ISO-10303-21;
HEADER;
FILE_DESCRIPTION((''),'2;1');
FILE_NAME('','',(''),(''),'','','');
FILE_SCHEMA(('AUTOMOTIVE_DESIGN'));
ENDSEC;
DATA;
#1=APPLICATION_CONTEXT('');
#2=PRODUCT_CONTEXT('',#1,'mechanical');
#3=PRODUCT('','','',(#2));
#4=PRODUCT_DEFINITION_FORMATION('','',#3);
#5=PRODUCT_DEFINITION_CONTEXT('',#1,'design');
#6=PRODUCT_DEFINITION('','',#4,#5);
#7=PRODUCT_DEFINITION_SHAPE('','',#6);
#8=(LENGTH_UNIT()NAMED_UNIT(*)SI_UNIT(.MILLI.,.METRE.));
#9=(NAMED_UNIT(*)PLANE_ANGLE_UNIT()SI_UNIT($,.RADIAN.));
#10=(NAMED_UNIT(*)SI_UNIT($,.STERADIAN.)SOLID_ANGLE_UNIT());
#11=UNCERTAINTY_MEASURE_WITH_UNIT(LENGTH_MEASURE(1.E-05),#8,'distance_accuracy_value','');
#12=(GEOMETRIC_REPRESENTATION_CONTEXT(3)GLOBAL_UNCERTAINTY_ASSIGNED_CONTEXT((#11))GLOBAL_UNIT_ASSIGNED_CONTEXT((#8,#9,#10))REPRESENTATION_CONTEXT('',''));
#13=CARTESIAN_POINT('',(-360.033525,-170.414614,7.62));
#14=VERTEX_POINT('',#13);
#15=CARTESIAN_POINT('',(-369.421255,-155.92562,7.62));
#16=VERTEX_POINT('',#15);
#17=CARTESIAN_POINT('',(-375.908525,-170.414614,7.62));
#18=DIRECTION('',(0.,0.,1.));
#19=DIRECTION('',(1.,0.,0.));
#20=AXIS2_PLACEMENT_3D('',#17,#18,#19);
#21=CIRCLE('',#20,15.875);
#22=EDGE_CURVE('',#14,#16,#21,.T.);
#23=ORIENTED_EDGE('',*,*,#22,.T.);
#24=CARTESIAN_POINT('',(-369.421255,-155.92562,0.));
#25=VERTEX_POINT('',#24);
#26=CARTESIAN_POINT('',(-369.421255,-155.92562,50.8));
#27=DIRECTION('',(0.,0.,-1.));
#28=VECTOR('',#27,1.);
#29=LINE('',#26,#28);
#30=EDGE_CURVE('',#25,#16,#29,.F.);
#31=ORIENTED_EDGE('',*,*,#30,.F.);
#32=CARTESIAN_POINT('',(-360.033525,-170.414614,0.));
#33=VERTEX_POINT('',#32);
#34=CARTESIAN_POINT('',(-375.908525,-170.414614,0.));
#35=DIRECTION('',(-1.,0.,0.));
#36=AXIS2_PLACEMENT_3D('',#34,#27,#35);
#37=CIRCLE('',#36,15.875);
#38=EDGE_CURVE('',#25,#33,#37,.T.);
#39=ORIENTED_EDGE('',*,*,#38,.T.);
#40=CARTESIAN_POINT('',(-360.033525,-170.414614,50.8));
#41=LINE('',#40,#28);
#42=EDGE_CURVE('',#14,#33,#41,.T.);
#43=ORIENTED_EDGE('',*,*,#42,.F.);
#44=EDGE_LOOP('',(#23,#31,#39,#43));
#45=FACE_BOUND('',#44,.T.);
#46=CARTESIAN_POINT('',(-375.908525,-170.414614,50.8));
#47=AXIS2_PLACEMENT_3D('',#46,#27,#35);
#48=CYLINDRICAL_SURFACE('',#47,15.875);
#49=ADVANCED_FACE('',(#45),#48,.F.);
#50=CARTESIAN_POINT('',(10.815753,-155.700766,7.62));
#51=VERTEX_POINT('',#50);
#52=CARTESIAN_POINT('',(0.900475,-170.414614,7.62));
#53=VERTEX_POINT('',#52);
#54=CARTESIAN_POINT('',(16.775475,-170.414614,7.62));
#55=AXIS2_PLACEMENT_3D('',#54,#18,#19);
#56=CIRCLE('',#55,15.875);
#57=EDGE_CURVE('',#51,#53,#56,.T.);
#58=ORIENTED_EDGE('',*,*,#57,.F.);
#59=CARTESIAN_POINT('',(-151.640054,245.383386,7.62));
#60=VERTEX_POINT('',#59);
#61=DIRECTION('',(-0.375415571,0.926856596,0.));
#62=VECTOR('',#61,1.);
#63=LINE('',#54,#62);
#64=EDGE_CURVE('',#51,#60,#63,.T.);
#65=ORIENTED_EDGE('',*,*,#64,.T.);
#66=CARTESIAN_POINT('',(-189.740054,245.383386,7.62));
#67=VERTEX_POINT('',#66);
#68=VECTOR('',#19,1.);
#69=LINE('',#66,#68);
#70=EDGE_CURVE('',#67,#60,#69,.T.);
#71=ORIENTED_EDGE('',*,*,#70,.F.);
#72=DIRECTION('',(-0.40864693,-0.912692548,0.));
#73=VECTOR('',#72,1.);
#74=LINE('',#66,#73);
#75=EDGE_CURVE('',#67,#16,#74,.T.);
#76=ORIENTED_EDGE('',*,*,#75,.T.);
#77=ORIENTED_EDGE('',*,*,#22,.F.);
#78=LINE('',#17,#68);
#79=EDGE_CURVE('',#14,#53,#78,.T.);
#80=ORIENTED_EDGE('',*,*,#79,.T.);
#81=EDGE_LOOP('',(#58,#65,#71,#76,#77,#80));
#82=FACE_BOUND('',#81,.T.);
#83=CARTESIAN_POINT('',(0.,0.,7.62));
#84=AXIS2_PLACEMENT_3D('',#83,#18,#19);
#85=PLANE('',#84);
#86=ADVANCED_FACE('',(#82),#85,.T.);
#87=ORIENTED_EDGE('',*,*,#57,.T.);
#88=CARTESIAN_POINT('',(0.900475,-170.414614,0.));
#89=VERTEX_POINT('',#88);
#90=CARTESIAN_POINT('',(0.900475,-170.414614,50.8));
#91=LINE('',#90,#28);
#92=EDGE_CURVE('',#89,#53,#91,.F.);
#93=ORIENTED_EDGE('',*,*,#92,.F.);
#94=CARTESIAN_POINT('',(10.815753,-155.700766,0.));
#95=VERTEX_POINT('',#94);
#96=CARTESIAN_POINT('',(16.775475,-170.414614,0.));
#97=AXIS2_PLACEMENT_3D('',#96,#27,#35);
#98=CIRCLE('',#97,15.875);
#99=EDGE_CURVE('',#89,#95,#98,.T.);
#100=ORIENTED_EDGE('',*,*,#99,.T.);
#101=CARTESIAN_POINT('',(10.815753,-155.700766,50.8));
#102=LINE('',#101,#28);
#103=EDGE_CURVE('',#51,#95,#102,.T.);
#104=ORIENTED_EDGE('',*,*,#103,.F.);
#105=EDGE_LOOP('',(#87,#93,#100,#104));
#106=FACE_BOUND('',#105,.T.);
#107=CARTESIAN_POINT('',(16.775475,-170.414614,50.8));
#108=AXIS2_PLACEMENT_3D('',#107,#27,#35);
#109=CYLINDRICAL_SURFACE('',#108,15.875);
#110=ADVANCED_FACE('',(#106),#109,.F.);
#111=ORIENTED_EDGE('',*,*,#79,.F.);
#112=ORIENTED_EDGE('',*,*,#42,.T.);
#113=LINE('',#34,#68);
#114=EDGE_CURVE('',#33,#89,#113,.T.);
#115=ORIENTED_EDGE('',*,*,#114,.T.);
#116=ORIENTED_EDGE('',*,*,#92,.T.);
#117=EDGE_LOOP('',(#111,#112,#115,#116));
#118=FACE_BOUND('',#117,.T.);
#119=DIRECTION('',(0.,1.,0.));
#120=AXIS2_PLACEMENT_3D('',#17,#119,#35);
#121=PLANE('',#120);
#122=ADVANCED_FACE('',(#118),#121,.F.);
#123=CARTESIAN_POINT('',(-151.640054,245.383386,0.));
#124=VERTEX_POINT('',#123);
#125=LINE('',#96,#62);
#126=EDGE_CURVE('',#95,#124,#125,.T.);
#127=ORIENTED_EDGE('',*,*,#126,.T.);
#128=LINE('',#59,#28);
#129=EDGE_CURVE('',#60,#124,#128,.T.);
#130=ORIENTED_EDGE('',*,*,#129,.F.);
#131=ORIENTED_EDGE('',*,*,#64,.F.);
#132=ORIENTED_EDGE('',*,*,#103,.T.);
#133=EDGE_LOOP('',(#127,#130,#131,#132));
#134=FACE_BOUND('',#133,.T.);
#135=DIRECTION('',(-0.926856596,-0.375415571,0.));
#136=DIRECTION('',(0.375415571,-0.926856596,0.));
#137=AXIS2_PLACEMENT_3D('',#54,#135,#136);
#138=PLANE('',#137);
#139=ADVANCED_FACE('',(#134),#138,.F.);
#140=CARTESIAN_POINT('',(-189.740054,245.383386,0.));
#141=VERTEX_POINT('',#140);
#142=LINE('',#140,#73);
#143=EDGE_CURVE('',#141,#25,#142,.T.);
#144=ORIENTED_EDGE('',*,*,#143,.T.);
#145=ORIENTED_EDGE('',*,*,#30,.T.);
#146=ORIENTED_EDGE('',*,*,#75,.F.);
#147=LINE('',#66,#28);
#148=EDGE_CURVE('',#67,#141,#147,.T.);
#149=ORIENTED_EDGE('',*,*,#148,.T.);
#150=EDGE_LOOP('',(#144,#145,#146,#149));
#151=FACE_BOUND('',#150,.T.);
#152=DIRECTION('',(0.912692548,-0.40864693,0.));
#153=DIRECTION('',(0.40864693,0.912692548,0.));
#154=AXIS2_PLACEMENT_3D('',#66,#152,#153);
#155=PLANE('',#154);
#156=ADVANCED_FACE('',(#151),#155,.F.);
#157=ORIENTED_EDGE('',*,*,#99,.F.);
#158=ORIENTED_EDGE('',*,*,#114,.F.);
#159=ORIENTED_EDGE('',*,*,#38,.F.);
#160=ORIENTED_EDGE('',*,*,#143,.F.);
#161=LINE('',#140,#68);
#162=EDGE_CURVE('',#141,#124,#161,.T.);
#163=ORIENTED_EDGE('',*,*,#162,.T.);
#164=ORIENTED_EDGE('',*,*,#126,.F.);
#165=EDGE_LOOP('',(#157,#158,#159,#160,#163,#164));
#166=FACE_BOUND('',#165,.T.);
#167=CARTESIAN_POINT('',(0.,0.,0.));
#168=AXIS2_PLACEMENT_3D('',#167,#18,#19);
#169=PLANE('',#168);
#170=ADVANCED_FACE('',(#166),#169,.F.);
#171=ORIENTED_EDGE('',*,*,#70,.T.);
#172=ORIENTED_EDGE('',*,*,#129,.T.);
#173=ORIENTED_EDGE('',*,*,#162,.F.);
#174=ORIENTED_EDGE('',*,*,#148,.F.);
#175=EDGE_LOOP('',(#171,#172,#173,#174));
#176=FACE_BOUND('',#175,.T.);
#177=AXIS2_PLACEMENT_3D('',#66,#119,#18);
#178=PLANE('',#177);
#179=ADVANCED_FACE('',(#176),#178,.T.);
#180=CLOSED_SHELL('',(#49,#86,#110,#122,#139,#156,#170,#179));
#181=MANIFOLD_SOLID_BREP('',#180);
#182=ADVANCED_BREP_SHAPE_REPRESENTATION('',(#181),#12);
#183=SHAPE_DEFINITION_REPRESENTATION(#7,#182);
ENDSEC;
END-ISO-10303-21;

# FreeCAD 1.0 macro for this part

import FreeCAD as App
import Part
import Sketcher

V = App.Vector
Q = App.Units.Quantity


def add_polygon(sketch, points):
    """Adds a closed chain of lines whose ends are joined by coincident constraints."""
    first, n = sketch.GeometryCount, len(points)
    for a, b in zip(points, points[1:] + points[:1]):
        sketch.addGeometry(Part.LineSegment(App.Vector(*a, 0), App.Vector(*b, 0)), False)
    for i in range(n):
        sketch.addConstraint(Sketcher.Constraint("Coincident", first + i, 2, first + (i + 1) % n, 1))

doc = App.newDocument("Part")
params = doc.addObject("Spreadsheet::Sheet", "Params")
for row, (alias, value) in enumerate([
    ("sketch1_width", "1.5 in"),
    ("sketch1_width2", "15.46 in"),
    ("pad1_length", "0.3 in"),
    ("sketch2_diameter", "1.25 in"),
    ("pocket1_length", "2 in"),
    ("sketch3_diameter", "1.25 in"),
    ("pocket2_length", "2 in"),
], start=1):
    params.set(f"A{row}", alias)
    params.set(f"B{row}", "=" + value)
    params.setAlias(f"B{row}", alias)

body = doc.addObject("PartDesign::Body", "Body")

# Sketch on XY plane
sketch1 = doc.addObject("Sketcher::SketchObject", "Sketch")
body.addObject(sketch1)
sketch1.AttachmentSupport = (doc.XY_Plane, [""])
sketch1.MapMode = "FlatFace"
add_polygon(sketch1, [(-189.740054, 245.383386), (-375.908525, -170.414614), (16.775475, -170.414614), (-151.640054, 245.383386)])  # lines 0-3
sketch1.addConstraint(Sketcher.Constraint("Horizontal", 1))
sketch1.addConstraint(Sketcher.Constraint("Horizontal", 3))
sketch1.addConstraint(Sketcher.Constraint("DistanceX", 3, 2, 3, 1, Q("1.5 in")))
sketch1.addConstraint(Sketcher.Constraint("DistanceX", 1, 1, 1, 2, Q("15.46 in")))
sketch1.addConstraint(Sketcher.Constraint("Angle", 2, Q("112.05 deg")))
sketch1.addConstraint(Sketcher.Constraint("DistanceY", 1, 2, 2, 2, Q("16.37 in")))
sketch1.addConstraint(Sketcher.Constraint("DistanceX", 0, 2, -1, 1, 375.908525))
sketch1.addConstraint(Sketcher.Constraint("DistanceY", 0, 2, -1, 1, 170.414614))
sketch1.setExpression("Constraints[6]", "Params.sketch1_width")
sketch1.setExpression("Constraints[7]", "Params.sketch1_width2")
pad1 = doc.addObject("PartDesign::Pad", "Pad")
body.addObject(pad1)
pad1.Profile = sketch1
pad1.setExpression("Length", "Params.pad1_length")

# Sketch on XY plane
sketch2 = doc.addObject("Sketcher::SketchObject", "Sketch001")
body.addObject(sketch2)
sketch2.AttachmentSupport = (doc.XY_Plane, [""])
sketch2.MapMode = "FlatFace"
sketch2.addGeometry(Part.Circle(V(-375.908525, -170.414614, 0), V(0, 0, 1), 15.875), False)
sketch2.addConstraint(Sketcher.Constraint("Diameter", 0, Q("1.25 in")))
sketch2.addConstraint(Sketcher.Constraint("DistanceX", 0, 3, -1, 1, 375.908525))
sketch2.addConstraint(Sketcher.Constraint("DistanceY", 0, 3, -1, 1, 170.414614))
sketch2.setExpression("Constraints[0]", "Params.sketch2_diameter")
pocket1 = doc.addObject("PartDesign::Pocket", "Pocket")
body.addObject(pocket1)
pocket1.Profile = sketch2
pocket1.setExpression("Length", "Params.pocket1_length")
pocket1.Reversed = True

# Sketch on XY plane
sketch3 = doc.addObject("Sketcher::SketchObject", "Sketch002")
body.addObject(sketch3)
sketch3.AttachmentSupport = (doc.XY_Plane, [""])
sketch3.MapMode = "FlatFace"
sketch3.addGeometry(Part.Circle(V(16.775475, -170.414614, 0), V(0, 0, 1), 15.875), False)
sketch3.addConstraint(Sketcher.Constraint("Diameter", 0, Q("1.25 in")))
sketch3.addConstraint(Sketcher.Constraint("DistanceX", -1, 1, 0, 3, 16.775475))
sketch3.addConstraint(Sketcher.Constraint("DistanceY", 0, 3, -1, 1, 170.414614))
sketch3.setExpression("Constraints[0]", "Params.sketch3_diameter")
pocket2 = doc.addObject("PartDesign::Pocket", "Pocket001")
body.addObject(pocket2)
pocket2.Profile = sketch3
pocket2.setExpression("Length", "Params.pocket2_length")
pocket2.Reversed = True

doc.recompute()
